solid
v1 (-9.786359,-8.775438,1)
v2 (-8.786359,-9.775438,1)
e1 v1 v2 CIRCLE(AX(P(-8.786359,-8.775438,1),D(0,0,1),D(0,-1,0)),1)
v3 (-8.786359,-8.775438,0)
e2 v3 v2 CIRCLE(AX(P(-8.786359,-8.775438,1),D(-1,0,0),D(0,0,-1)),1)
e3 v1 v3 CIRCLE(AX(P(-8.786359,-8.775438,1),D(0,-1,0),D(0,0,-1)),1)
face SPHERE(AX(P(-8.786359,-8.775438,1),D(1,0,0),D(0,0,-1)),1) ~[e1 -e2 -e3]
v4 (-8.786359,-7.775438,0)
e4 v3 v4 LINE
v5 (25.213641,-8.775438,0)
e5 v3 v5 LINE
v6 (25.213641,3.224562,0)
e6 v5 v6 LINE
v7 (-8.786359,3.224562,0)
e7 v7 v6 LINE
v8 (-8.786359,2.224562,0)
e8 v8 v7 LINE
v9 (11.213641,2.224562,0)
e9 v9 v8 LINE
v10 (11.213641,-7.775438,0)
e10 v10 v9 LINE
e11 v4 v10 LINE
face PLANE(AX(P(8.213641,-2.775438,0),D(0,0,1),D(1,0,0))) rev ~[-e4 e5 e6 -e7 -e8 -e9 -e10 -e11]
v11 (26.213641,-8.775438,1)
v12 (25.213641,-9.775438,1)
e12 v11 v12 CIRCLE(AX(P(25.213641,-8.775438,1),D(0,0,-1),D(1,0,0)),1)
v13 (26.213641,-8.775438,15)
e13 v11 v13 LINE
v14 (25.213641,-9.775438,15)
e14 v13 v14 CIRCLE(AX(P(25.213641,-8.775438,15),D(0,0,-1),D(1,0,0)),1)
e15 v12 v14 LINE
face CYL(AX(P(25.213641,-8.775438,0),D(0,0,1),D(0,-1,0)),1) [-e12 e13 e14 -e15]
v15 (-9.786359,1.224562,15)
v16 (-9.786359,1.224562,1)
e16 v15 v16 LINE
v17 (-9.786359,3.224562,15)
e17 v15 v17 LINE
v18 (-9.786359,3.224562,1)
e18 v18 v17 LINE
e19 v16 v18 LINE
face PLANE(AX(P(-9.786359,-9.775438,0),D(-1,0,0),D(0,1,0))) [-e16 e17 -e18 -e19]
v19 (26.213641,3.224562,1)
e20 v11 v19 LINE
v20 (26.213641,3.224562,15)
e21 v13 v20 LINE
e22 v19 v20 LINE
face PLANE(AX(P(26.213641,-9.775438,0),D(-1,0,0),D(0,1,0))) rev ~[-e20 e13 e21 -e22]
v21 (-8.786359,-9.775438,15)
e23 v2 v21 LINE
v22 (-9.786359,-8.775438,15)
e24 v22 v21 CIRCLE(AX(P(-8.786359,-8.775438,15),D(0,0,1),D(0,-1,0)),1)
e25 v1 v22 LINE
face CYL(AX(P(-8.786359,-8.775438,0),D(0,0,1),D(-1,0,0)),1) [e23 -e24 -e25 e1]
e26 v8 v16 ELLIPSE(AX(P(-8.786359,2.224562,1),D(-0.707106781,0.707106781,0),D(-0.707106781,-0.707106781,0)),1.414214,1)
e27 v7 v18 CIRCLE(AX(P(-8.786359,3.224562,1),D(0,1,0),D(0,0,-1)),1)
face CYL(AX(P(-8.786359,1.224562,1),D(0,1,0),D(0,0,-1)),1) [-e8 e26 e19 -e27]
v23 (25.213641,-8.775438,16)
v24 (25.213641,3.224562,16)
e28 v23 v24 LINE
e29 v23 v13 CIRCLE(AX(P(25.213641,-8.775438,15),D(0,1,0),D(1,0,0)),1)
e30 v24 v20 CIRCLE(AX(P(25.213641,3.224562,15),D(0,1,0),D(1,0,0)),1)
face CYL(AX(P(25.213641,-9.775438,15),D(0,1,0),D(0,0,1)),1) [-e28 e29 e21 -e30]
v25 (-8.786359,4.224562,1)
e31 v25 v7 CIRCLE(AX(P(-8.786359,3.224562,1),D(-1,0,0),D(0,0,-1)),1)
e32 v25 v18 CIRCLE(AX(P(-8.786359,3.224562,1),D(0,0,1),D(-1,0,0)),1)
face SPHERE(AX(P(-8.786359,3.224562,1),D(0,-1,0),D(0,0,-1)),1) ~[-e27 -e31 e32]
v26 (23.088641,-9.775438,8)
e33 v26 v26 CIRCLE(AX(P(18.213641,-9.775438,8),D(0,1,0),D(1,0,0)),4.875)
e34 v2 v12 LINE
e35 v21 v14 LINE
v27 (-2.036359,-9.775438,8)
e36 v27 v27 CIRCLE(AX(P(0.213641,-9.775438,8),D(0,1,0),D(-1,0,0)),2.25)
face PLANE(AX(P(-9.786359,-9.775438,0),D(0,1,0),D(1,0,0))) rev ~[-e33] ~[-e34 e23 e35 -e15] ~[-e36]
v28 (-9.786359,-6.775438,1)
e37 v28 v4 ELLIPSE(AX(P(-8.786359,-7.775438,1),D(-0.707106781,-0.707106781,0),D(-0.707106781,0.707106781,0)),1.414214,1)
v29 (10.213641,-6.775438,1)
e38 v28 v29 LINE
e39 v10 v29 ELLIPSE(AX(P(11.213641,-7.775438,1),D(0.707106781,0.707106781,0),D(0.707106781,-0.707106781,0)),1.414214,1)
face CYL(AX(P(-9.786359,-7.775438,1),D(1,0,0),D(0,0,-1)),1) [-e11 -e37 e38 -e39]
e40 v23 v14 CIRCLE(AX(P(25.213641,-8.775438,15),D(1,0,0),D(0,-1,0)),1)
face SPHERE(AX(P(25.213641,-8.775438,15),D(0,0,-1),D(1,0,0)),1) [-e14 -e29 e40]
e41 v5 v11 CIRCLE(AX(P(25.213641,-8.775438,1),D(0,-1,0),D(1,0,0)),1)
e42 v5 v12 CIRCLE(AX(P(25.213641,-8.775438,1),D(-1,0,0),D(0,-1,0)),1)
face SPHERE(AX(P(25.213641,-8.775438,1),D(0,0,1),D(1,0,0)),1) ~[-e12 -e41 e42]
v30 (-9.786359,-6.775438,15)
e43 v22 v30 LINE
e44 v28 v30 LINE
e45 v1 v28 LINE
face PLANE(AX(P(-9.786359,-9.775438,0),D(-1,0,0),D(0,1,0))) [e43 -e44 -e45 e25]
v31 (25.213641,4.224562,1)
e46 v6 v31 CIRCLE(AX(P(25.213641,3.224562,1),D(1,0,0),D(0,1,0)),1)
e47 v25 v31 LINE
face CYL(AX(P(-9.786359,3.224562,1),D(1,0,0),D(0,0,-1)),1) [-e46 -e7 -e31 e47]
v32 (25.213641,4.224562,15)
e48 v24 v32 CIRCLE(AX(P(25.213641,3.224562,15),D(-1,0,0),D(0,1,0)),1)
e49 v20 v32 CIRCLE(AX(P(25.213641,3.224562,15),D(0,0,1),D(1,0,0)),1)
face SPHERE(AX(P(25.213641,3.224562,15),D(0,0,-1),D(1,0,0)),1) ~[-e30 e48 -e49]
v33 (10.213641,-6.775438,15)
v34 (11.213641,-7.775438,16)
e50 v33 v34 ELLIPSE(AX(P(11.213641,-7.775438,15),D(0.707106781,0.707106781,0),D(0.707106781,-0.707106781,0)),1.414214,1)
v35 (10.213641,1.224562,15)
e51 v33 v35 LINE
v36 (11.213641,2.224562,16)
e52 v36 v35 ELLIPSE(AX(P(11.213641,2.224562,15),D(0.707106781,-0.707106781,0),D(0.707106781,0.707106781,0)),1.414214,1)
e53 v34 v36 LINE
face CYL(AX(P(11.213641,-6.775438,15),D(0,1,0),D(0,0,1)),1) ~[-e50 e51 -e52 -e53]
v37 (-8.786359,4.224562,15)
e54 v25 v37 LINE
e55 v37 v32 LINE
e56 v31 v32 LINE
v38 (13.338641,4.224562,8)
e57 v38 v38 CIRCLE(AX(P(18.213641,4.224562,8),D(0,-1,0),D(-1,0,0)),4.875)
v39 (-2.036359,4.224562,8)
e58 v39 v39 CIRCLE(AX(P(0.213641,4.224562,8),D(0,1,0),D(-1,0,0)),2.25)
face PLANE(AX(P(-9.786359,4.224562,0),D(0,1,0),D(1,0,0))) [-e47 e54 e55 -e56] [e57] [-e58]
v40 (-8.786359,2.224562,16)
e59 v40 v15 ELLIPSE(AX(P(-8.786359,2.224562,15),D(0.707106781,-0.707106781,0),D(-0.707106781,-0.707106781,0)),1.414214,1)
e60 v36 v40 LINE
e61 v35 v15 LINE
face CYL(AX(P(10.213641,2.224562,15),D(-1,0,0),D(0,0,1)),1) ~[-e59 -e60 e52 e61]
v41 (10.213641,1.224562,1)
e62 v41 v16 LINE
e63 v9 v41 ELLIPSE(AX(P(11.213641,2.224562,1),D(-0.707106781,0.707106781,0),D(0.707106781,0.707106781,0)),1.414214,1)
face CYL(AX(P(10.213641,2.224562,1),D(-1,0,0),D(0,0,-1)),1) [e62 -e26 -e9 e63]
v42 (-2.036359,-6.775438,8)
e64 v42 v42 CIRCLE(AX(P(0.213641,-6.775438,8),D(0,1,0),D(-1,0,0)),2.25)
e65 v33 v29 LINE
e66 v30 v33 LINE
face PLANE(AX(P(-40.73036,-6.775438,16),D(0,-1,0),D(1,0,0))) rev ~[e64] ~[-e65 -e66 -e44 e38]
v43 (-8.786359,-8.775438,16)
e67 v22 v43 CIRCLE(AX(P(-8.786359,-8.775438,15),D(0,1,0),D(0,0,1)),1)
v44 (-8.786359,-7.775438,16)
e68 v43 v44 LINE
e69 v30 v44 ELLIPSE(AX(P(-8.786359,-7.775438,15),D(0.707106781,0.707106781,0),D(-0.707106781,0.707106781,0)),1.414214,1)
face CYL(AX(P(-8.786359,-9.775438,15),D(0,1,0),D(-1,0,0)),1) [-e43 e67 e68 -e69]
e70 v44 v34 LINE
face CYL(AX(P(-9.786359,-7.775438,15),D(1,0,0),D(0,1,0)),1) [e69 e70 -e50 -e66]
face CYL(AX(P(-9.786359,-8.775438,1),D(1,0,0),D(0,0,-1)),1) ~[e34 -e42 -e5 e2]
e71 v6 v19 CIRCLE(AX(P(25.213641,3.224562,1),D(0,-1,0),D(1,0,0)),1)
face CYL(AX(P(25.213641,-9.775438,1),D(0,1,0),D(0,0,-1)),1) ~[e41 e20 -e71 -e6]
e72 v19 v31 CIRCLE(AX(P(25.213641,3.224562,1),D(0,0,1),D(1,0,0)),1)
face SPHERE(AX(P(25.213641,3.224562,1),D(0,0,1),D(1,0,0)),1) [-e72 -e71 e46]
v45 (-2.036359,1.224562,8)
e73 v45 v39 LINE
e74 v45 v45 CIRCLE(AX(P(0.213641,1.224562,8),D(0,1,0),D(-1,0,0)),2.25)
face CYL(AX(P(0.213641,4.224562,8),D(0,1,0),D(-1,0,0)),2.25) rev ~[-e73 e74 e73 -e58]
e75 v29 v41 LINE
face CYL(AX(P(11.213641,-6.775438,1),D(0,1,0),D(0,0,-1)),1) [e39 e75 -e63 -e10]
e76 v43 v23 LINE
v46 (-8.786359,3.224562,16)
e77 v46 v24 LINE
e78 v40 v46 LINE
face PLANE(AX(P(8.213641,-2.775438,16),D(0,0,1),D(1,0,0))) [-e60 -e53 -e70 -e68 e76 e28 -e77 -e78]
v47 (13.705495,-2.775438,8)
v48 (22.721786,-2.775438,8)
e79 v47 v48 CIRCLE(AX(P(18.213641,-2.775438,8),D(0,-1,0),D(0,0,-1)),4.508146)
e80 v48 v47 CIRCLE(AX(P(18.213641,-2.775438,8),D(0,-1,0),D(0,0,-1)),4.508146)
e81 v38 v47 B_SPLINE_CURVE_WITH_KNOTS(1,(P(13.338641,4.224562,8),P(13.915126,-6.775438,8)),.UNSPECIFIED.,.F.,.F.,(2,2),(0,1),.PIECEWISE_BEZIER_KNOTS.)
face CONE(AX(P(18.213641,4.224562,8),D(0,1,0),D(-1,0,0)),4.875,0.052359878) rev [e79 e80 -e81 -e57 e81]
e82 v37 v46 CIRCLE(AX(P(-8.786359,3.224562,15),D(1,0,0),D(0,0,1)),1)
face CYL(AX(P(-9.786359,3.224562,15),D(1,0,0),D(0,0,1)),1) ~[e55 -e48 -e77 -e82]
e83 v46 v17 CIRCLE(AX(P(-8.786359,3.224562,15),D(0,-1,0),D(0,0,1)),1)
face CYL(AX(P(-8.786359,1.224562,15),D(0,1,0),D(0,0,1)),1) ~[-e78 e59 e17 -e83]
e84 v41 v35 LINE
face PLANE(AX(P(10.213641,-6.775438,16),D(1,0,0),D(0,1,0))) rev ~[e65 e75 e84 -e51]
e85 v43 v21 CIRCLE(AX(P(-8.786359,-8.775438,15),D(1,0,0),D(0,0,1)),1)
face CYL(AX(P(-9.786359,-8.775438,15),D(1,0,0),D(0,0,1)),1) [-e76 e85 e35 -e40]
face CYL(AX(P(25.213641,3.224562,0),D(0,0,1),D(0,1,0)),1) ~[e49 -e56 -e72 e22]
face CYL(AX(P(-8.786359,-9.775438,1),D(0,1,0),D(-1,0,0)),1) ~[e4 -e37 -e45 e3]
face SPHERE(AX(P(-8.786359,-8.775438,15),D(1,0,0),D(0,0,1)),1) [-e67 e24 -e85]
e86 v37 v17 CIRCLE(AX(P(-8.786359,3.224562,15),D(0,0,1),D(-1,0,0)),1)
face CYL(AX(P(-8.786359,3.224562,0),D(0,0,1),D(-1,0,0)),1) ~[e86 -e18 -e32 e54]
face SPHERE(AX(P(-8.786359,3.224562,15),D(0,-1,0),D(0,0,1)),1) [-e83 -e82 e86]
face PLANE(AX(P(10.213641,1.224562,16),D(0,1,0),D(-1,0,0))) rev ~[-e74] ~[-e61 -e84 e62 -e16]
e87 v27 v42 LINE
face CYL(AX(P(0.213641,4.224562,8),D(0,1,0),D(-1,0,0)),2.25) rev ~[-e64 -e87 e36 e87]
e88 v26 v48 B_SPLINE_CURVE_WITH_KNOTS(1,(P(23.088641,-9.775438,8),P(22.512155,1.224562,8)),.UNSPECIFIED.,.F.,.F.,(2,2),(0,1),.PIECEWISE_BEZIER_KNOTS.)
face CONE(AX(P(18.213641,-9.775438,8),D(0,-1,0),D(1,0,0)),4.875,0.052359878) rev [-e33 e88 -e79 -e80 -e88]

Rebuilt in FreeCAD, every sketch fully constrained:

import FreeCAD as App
import Part
import Sketcher

V = App.Vector
Q = App.Units.Quantity


def edges_at(feature, points):
    """Names of the edges that pass closest to the given points."""
    edges = feature.Shape.Edges
    near = lambda p: min(range(len(edges)), key=lambda i: edges[i].distToShape(Part.Vertex(*p))[0])
    return sorted({f"Edge{near(p) + 1}" for p in points})


def add_polygon(sketch, points):
    """Adds a closed chain of lines whose ends are joined by coincident constraints."""
    first, n = sketch.GeometryCount, len(points)
    for a, b in zip(points, points[1:] + points[:1]):
        sketch.addGeometry(Part.LineSegment(App.Vector(*a, 0), App.Vector(*b, 0)), False)
    for i in range(n):
        sketch.addConstraint(Sketcher.Constraint("Coincident", first + i, 2, first + (i + 1) % n, 1))

doc = App.newDocument("Part")
body = doc.addObject("PartDesign::Body", "Body")

sketch1 = body.newObject("Sketcher::SketchObject", "Sketch")
sketch1.AttachmentSupport = (doc.getObject("XY_Plane"), [""])
sketch1.MapMode = "FlatFace"
add_polygon(sketch1, [(-10, 4), (-10, -10), (26, -10), (26, 4)])
sketch1.addConstraint(Sketcher.Constraint("Vertical", 0))
sketch1.addConstraint(Sketcher.Constraint("Horizontal", 1))
sketch1.addConstraint(Sketcher.Constraint("Vertical", 2))
sketch1.addConstraint(Sketcher.Constraint("Horizontal", 3))
sketch1.addConstraint(Sketcher.Constraint("DistanceX", 1, 1, 1, 2, Q("36 mm")))
sketch1.addConstraint(Sketcher.Constraint("DistanceY", 0, 2, 0, 1, Q("14 mm")))
sketch1.addConstraint(Sketcher.Constraint("DistanceX", 0, 2, -1, 1, Q("9.786359 mm")))
sketch1.addConstraint(Sketcher.Constraint("DistanceY", 0, 2, -1, 1, Q("9.775438 mm")))
pad1 = body.newObject("PartDesign::Pad", "Pad")
pad1.Profile = sketch1
pad1.Length = 16

sketch2 = body.newObject("Sketcher::SketchObject", "Sketch001")
sketch2.AttachmentSupport = (doc.getObject("XY_Plane"), [""])
sketch2.MapMode = "FlatFace"
sketch2.AttachmentOffset = App.Placement(V(0, 0, 16), App.Rotation())
add_polygon(sketch2, [(10, -7), (10, 1), (-41, 1), (-41, -7)])
sketch2.addConstraint(Sketcher.Constraint("Vertical", 0))
sketch2.addConstraint(Sketcher.Constraint("Horizontal", 1))
sketch2.addConstraint(Sketcher.Constraint("Vertical", 2))
sketch2.addConstraint(Sketcher.Constraint("Horizontal", 3))
sketch2.addConstraint(Sketcher.Constraint("DistanceY", 0, 1, 0, 2, Q("8 mm")))
sketch2.addConstraint(Sketcher.Constraint("DistanceX", 1, 2, 1, 1, Q("50.944 mm")))
sketch2.addConstraint(Sketcher.Constraint("DistanceX", -1, 1, 0, 2, Q("10.213641 mm")))
sketch2.addConstraint(Sketcher.Constraint("DistanceY", -1, 1, 0, 2, Q("1.224562 mm")))
pocket1 = body.newObject("PartDesign::Pocket", "Pocket")
pocket1.Profile = sketch2
pocket1.Length = 58.6
pocket1.Midplane = True

sketch3 = body.newObject("Sketcher::SketchObject", "Sketch002")
sketch3.AttachmentSupport = (doc.getObject("XZ_Plane"), [""])
sketch3.MapMode = "FlatFace"
sketch3.AttachmentOffset = App.Placement(V(0, 0, -4.224562), App.Rotation())
sketch3.addGeometry(Part.Circle(V(18.2, 8, 0), V(0, 0, 1), 4.9), False)
sketch3.addConstraint(Sketcher.Constraint("Diameter", 0, Q("9.75 mm")))
sketch3.addConstraint(Sketcher.Constraint("DistanceY", -1, 1, 0, 3, Q("8 mm")))
sketch3.addConstraint(Sketcher.Constraint("DistanceX", -1, 1, 0, 3, Q("18.213641 mm")))
pocket2 = body.newObject("PartDesign::Pocket", "Pocket001")
pocket2.Profile = sketch3
pocket2.Length = 11
pocket2.Reversed = True
pocket2.TaperAngle = -3

sketch4 = body.newObject("Sketcher::SketchObject", "Sketch003")
sketch4.AttachmentSupport = (doc.getObject("XZ_Plane"), [""])
sketch4.MapMode = "FlatFace"
sketch4.AttachmentOffset = App.Placement(V(0, 0, 9.775438), App.Rotation())
sketch4.addGeometry(Part.Circle(V(18.2, 8, 0), V(0, 0, 1), 4.9), False)
sketch4.addConstraint(Sketcher.Constraint("Diameter", 0, Q("9.75 mm")))
sketch4.addConstraint(Sketcher.Constraint("DistanceY", -1, 1, 0, 3, Q("8 mm")))
sketch4.addConstraint(Sketcher.Constraint("DistanceX", -1, 1, 0, 3, Q("18.213641 mm")))
pocket3 = body.newObject("PartDesign::Pocket", "Pocket002")
pocket3.Profile = sketch4
pocket3.Length = 11
pocket3.TaperAngle = -3
doc.recompute()

fillet = body.newObject("PartDesign::Fillet", "Fillet")
fillet.Base = (pocket3, edges_at(pocket3, [
    (26.214, -9.775, 8),
    (26.214, 4.225, 8),
    (26.214, -2.775, 0),
    (26.214, -2.775, 16),
    (8.214, -9.775, 16),
    (-9.786, -8.275, 16),
    (0.214, -6.775, 16),
    (10.214, -2.775, 16),
    (0.214, 1.225, 16),
    (-9.786, 2.725, 16),
    (8.214, 4.225, 16),
    (8.214, -9.775, 0),
    (-9.786, -8.275, 0),
    (0.214, -6.775, 0),
    (10.214, -2.775, 0),
    (0.214, 1.225, 0),
    (-9.786, 2.725, 0),
    (8.214, 4.225, 0),
    (-9.786, 4.225, 8),
    (-9.786, -9.775, 8),
]))
fillet.Radius = 1

sketch5 = body.newObject("Sketcher::SketchObject", "Sketch004")
sketch5.AttachmentSupport = (doc.getObject("XZ_Plane"), [""])
sketch5.MapMode = "FlatFace"
sketch5.AttachmentOffset = App.Placement(V(0, 0, -4.224562), App.Rotation())
sketch5.addGeometry(Part.Circle(V(0.2, 8, 0), V(0, 0, 1), 2.2), False)
sketch5.addConstraint(Sketcher.Constraint("Diameter", 0, Q("4.5 mm")))
sketch5.addConstraint(Sketcher.Constraint("DistanceY", -1, 1, 0, 3, Q("8 mm")))
sketch5.addConstraint(Sketcher.Constraint("DistanceX", -1, 1, 0, 3, Q("0.213641 mm")))
pocket4 = body.newObject("PartDesign::Pocket", "Pocket003")
pocket4.Profile = sketch5
pocket4.Length = 32
pocket4.Midplane = True

doc.recompute()
